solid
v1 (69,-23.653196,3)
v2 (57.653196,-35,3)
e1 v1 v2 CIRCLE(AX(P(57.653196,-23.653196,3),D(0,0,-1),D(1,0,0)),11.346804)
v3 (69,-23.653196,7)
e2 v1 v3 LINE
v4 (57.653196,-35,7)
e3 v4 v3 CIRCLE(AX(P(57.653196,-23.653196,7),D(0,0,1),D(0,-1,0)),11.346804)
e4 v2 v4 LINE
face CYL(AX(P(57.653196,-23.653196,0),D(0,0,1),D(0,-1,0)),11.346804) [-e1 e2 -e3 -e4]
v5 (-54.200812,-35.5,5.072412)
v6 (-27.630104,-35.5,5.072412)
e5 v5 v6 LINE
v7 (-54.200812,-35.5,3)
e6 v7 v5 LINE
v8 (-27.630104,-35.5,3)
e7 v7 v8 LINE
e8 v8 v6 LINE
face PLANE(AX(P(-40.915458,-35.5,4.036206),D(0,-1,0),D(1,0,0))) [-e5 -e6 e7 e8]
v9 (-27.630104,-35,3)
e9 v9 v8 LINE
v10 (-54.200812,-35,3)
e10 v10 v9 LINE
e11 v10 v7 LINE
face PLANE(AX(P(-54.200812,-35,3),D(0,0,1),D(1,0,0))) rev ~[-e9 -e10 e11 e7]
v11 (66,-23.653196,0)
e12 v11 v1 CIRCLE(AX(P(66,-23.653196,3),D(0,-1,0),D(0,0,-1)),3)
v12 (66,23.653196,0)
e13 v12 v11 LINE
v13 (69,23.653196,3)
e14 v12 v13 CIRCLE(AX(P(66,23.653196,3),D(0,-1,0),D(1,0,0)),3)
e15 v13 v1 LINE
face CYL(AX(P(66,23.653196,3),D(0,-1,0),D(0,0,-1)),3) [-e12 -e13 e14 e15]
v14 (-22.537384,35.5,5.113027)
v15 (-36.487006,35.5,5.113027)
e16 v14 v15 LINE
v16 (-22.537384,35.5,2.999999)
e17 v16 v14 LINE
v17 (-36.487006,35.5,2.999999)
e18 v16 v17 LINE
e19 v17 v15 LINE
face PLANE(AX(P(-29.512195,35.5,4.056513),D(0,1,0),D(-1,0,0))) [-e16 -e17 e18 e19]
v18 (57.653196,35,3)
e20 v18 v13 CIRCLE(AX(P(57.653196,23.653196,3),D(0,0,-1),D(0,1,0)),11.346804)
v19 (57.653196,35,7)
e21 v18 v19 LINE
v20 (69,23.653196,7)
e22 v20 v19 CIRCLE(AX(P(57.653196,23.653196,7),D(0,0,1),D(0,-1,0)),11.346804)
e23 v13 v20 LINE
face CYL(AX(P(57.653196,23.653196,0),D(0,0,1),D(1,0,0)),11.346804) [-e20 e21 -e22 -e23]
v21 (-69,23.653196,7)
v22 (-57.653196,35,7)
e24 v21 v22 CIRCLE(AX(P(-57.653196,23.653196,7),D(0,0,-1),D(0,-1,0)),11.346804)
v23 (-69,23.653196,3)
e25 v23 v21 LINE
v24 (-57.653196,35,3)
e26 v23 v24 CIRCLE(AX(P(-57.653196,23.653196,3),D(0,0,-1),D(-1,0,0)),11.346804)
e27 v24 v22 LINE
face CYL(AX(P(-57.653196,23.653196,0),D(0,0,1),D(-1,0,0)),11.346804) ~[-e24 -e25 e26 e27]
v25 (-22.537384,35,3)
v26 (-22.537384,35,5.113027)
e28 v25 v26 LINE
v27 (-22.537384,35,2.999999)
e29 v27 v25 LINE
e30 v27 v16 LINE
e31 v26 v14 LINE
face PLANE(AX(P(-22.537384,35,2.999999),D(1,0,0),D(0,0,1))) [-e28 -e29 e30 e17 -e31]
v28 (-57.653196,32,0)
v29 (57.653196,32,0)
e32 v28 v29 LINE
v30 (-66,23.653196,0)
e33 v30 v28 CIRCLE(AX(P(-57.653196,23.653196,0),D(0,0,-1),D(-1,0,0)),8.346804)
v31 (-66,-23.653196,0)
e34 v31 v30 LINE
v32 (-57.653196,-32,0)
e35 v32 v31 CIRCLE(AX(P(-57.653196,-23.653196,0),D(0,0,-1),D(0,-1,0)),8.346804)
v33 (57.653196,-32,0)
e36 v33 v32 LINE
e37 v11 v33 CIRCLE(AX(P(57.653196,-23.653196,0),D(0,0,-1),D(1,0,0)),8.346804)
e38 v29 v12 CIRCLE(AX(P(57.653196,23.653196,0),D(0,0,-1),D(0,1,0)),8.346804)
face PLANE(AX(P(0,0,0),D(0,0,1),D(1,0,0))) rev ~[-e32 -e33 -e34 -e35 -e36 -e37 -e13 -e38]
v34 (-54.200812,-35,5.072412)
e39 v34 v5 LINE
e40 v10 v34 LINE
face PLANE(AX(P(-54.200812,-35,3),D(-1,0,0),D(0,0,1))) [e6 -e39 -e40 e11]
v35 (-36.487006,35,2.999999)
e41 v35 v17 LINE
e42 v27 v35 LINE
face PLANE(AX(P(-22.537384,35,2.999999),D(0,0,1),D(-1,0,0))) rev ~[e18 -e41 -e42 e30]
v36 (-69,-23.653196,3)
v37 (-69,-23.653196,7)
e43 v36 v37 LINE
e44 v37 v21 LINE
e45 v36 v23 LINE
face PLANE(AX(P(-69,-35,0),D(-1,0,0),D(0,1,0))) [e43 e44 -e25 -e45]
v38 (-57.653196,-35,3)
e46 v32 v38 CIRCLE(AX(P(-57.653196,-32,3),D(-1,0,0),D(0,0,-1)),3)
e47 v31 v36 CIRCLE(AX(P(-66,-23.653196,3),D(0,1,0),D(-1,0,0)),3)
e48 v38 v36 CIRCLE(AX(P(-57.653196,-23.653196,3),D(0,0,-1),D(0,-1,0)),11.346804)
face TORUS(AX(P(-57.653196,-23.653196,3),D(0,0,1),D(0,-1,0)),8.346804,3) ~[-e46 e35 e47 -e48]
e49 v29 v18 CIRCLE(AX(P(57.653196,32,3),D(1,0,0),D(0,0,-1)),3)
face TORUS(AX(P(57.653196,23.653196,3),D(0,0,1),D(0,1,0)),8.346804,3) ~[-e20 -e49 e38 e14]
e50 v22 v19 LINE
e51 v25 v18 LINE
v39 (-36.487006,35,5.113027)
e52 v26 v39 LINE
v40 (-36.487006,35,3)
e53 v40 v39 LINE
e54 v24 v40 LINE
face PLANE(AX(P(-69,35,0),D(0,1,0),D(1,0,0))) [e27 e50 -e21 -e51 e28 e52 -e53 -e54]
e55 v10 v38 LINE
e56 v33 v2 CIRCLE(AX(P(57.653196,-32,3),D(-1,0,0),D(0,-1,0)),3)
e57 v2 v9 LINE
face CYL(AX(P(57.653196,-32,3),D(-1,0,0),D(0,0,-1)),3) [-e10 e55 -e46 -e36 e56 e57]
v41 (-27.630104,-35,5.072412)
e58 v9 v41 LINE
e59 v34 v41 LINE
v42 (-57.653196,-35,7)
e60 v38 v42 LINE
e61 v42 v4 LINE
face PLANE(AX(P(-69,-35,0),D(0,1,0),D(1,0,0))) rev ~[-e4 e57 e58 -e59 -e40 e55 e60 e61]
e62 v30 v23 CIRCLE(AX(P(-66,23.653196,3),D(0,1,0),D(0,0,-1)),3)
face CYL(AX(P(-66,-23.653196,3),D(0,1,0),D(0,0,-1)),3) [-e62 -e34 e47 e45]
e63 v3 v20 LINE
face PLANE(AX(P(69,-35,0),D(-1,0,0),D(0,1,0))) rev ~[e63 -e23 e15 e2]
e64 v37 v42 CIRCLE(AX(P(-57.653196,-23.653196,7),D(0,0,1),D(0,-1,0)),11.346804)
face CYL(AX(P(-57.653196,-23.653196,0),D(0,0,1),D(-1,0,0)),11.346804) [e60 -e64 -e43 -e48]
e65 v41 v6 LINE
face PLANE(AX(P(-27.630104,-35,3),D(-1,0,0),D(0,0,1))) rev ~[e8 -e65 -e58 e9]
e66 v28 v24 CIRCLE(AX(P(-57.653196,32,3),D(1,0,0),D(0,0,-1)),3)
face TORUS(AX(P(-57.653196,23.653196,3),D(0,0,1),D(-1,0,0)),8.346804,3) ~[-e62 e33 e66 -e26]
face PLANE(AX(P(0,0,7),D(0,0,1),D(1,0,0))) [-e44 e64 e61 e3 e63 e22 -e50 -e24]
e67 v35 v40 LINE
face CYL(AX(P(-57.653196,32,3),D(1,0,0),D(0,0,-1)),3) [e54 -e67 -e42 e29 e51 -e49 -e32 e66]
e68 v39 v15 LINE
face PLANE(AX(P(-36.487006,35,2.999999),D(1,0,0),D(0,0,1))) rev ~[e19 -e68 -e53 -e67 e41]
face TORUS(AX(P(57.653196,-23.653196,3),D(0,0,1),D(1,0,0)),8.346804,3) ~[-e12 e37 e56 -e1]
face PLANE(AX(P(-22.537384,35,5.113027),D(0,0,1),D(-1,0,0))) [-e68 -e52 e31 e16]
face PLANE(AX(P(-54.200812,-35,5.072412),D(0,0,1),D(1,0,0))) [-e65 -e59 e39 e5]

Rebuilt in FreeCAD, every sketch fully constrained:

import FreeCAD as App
import Part
import Sketcher

V = App.Vector


def edges_at(feature, points):
    """Names of the edges that pass closest to the given points."""
    edges = feature.Shape.Edges
    near = lambda p: min(range(len(edges)), key=lambda i: edges[i].distToShape(Part.Vertex(*p))[0])
    return sorted({f"Edge{near(p) + 1}" for p in points})


def add_polygon(sketch, points):
    """Adds a closed chain of lines whose ends are joined by coincident constraints."""
    first, n = sketch.GeometryCount, len(points)
    for a, b in zip(points, points[1:] + points[:1]):
        sketch.addGeometry(Part.LineSegment(App.Vector(*a, 0), App.Vector(*b, 0)), False)
    for i in range(n):
        sketch.addConstraint(Sketcher.Constraint("Coincident", first + i, 2, first + (i + 1) % n, 1))

doc = App.newDocument("Part")
body = doc.addObject("PartDesign::Body", "Body")

# Sketch on XY plane
sketch1 = doc.addObject("Sketcher::SketchObject", "Sketch")
body.addObject(sketch1)
sketch1.AttachmentSupport = (doc.XY_Plane, [""])
sketch1.MapMode = "FlatFace"
add_polygon(sketch1, [(-69, 35), (-69, -35), (69, -35), (69, 35)])  # lines 0-3
sketch1.addConstraint(Sketcher.Constraint("Vertical", 0))
sketch1.addConstraint(Sketcher.Constraint("Horizontal", 1))
sketch1.addConstraint(Sketcher.Constraint("Vertical", 2))
sketch1.addConstraint(Sketcher.Constraint("Horizontal", 3))
sketch1.addConstraint(Sketcher.Constraint("Symmetric", 0, 2, 2, 2, -1, 1))
sketch1.addConstraint(Sketcher.Constraint("DistanceX", 1, 1, 1, 2, 138.0))
sketch1.addConstraint(Sketcher.Constraint("DistanceY", 0, 2, 0, 1, 70.0))
pad1 = doc.addObject("PartDesign::Pad", "Pad")
body.addObject(pad1)
pad1.Profile = sketch1
pad1.Length = 7
doc.recompute()

fillet = doc.addObject("PartDesign::Fillet", "Fillet")
body.addObject(fillet)
fillet.Base = (pad1, edges_at(pad1, [
    (69, -35, 3.5),
    (69, 35, 3.5),
    (-69, -35, 3.5),
    (-69, 35, 3.5),
]))
fillet.Radius = 11.346804
doc.recompute()

fillet2 = doc.addObject("PartDesign::Fillet", "Fillet001")
body.addObject(fillet2)
fillet2.Base = (fillet, edges_at(fillet, [
    (0, 35, 0),
    (0, -35, 0),
    (-69, 0, 0),
    (69, 0, 0),
]))
fillet2.Radius = 3

# Sketch on XZ plane
sketch2 = doc.addObject("Sketcher::SketchObject", "Sketch001")
body.addObject(sketch2)
sketch2.AttachmentSupport = (doc.XZ_Plane, [""])
sketch2.MapMode = "FlatFace"
sketch2.AttachmentOffset = App.Placement(V(0, 0, 35), App.Rotation())
add_polygon(sketch2, [(-54.2, 5.1), (-54.2, 3), (-27.6, 3), (-27.6, 5.1)])  # lines 0-3
sketch2.addConstraint(Sketcher.Constraint("Vertical", 0))
sketch2.addConstraint(Sketcher.Constraint("Horizontal", 1))
sketch2.addConstraint(Sketcher.Constraint("Vertical", 2))
sketch2.addConstraint(Sketcher.Constraint("Horizontal", 3))
sketch2.addConstraint(Sketcher.Constraint("DistanceY", -1, 1, 0, 2, 3.0))
sketch2.addConstraint(Sketcher.Constraint("DistanceX", 1, 1, 1, 2, 26.570709))
sketch2.addConstraint(Sketcher.Constraint("DistanceY", 0, 2, 0, 1, 2.072412))
sketch2.addConstraint(Sketcher.Constraint("DistanceX", 0, 2, -1, 1, 54.200812))
pad2 = doc.addObject("PartDesign::Pad", "Pad001")
body.addObject(pad2)
pad2.Profile = sketch2
pad2.Length = 0.5

# Sketch on XZ plane
sketch3 = doc.addObject("Sketcher::SketchObject", "Sketch002")
body.addObject(sketch3)
sketch3.AttachmentSupport = (doc.XZ_Plane, [""])
sketch3.MapMode = "FlatFace"
sketch3.AttachmentOffset = App.Placement(V(0, 0, -35), App.Rotation())
add_polygon(sketch3, [(-22.5, 5.1), (-22.5, 3), (-36.5, 3), (-36.5, 5.1)])  # lines 0-3
sketch3.addConstraint(Sketcher.Constraint("Vertical", 0))
sketch3.addConstraint(Sketcher.Constraint("Horizontal", 1))
sketch3.addConstraint(Sketcher.Constraint("Vertical", 2))
sketch3.addConstraint(Sketcher.Constraint("Horizontal", 3))
sketch3.addConstraint(Sketcher.Constraint("DistanceY", -1, 1, 0, 2, 2.999999))
sketch3.addConstraint(Sketcher.Constraint("DistanceX", 1, 2, 1, 1, 13.949622))
sketch3.addConstraint(Sketcher.Constraint("DistanceY", 0, 2, 0, 1, 2.113027))
sketch3.addConstraint(Sketcher.Constraint("DistanceX", 0, 2, -1, 1, 22.537384))
pad3 = doc.addObject("PartDesign::Pad", "Pad002")
body.addObject(pad3)
pad3.Profile = sketch3
pad3.Length = 0.5
pad3.Reversed = True

doc.recompute()
